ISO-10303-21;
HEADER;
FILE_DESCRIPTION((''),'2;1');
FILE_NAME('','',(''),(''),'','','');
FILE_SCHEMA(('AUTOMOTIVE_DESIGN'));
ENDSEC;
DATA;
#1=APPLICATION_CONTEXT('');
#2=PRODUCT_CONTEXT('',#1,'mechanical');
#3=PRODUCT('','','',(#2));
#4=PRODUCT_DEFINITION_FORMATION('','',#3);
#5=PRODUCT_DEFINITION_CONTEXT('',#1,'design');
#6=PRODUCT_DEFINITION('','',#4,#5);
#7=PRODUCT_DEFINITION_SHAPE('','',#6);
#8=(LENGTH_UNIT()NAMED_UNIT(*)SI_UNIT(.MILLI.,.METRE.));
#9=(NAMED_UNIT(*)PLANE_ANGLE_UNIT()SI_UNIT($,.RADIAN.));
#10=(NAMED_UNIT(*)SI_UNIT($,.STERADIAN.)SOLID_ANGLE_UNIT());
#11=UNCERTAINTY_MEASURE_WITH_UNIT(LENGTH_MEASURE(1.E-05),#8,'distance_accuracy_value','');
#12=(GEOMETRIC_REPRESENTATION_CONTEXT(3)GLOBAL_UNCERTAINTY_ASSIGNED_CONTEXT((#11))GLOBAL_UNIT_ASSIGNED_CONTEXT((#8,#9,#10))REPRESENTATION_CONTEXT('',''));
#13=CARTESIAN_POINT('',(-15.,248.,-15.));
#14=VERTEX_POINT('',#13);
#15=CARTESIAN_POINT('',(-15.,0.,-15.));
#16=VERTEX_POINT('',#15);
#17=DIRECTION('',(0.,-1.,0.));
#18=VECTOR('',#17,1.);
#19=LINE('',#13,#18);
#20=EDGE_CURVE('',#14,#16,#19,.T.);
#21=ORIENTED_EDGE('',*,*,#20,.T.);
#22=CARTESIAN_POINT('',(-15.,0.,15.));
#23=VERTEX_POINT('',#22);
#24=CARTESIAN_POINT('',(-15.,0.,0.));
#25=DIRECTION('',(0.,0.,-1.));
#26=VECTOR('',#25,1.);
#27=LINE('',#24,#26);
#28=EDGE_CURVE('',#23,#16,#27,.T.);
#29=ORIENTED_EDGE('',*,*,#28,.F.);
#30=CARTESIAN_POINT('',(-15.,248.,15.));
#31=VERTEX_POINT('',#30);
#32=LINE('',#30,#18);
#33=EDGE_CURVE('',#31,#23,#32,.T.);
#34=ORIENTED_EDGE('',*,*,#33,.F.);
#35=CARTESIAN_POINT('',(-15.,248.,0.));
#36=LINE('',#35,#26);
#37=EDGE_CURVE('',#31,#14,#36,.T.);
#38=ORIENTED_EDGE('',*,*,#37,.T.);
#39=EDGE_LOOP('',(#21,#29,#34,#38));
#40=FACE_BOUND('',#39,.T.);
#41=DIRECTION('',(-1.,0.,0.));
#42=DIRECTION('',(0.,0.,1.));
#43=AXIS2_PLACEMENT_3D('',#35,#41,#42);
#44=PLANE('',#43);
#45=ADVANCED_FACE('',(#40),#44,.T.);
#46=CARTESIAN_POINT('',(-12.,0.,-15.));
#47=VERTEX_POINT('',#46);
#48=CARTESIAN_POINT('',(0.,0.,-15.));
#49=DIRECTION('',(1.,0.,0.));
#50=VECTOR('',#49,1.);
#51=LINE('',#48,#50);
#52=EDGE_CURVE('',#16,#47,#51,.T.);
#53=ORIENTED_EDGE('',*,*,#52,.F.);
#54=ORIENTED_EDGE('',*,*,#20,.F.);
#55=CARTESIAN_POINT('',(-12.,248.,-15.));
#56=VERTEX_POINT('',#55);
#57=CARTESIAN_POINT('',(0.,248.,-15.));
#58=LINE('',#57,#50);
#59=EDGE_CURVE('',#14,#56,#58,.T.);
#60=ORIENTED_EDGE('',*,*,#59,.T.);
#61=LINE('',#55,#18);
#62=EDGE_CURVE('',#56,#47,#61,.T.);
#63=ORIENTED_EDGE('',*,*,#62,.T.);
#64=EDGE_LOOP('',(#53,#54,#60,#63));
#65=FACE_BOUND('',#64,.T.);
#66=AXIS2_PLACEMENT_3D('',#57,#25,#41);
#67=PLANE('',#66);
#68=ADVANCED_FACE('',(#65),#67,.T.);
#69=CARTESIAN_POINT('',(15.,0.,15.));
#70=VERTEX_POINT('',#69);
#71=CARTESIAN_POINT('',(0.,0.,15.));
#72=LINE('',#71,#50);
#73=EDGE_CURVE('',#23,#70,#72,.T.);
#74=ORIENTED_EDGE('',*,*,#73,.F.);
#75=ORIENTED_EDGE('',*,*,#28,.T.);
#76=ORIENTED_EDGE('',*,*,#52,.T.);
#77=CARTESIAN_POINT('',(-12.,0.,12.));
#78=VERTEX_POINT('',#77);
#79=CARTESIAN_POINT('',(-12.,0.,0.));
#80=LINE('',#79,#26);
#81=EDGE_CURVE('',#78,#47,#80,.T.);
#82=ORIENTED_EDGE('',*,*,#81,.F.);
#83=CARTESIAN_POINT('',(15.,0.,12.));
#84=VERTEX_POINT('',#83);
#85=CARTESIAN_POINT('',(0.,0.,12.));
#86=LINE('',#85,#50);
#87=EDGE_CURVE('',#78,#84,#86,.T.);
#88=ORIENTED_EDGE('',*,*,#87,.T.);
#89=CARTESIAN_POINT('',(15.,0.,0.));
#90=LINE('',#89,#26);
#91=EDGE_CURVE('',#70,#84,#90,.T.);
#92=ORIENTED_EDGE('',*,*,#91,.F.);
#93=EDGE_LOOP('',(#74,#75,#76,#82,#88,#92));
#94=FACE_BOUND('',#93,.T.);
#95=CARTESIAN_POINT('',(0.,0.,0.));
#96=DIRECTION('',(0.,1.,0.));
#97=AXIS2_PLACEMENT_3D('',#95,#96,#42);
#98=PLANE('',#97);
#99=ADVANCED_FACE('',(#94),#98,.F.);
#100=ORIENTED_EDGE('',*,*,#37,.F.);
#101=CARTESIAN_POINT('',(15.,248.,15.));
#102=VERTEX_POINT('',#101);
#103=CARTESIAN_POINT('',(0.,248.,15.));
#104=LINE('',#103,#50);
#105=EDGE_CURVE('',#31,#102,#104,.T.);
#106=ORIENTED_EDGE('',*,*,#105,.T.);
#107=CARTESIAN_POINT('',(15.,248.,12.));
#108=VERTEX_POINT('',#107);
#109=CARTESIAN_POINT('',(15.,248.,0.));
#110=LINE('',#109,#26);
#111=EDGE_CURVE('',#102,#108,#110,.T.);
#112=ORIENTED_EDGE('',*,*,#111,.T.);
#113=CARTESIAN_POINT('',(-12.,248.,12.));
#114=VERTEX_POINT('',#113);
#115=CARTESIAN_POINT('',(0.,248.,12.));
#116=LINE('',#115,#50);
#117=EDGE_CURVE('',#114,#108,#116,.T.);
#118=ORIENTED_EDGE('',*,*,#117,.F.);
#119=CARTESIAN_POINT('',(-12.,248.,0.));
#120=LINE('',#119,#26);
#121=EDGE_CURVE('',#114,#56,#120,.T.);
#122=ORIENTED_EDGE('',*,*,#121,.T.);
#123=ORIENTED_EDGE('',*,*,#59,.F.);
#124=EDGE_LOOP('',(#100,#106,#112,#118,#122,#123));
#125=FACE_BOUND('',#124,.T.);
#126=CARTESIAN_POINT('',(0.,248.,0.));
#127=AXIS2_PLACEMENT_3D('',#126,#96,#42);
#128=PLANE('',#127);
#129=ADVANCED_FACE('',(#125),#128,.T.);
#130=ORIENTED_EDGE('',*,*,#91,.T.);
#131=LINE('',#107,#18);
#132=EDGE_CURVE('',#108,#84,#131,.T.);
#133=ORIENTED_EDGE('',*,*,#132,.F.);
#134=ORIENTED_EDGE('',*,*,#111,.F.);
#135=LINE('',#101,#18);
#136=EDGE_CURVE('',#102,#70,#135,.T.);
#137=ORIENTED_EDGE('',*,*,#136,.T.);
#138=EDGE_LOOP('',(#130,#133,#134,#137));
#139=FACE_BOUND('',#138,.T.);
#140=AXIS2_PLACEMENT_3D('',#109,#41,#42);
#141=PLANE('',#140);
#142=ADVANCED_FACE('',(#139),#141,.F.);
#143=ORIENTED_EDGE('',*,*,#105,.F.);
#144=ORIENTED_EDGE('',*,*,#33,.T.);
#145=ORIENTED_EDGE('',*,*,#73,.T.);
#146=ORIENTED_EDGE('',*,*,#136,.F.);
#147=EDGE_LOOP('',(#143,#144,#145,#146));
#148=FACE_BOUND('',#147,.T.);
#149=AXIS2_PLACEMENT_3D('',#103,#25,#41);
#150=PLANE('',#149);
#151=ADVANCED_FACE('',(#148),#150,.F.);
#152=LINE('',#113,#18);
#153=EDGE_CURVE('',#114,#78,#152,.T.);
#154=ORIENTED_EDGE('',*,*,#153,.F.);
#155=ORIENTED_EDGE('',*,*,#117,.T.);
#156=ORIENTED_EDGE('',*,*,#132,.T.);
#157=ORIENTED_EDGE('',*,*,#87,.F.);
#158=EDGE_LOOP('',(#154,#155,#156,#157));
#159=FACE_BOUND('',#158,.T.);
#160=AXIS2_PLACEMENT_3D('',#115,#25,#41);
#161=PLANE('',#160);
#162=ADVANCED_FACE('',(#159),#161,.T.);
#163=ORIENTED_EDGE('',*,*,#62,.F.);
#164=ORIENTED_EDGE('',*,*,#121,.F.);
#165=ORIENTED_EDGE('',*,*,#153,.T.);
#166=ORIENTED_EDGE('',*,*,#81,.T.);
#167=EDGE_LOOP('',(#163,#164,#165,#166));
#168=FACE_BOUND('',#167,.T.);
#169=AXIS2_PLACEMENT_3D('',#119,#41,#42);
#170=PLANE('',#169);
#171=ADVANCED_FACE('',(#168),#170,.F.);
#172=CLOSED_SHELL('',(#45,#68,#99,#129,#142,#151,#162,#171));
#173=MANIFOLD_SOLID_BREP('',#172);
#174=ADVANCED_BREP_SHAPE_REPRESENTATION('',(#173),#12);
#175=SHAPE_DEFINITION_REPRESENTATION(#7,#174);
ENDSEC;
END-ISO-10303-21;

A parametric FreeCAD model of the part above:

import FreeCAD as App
import Part
import Sketcher
from FreeCAD import Vector

doc = App.newDocument("Part")
body = doc.addObject("PartDesign::Body", "Body")

sketch1 = doc.addObject("Sketcher::SketchObject", "Sketch")
body.addObject(sketch1)
sketch1.AttachmentSupport = (doc.XZ_Plane, [""])
sketch1.MapMode = "FlatFace"
sketch1.addGeometry([
    Part.LineSegment(Vector(-12, 12, 0), Vector(-12, -15, 0)),
    Part.LineSegment(Vector(-12, -15, 0), Vector(-15, -15, 0)),
    Part.LineSegment(Vector(-15, -15, 0), Vector(-15, 15, 0)),
    Part.LineSegment(Vector(-15, 15, 0), Vector(15, 15, 0)),
    Part.LineSegment(Vector(15, 15, 0), Vector(15, 12, 0)),
    Part.LineSegment(Vector(15, 12, 0), Vector(-12, 12, 0)),
], False)
sketch1.addConstraint([
    Sketcher.Constraint("Coincident", 0, 2, 1, 1),
    Sketcher.Constraint("Coincident", 1, 2, 2, 1),
    Sketcher.Constraint("Coincident", 2, 2, 3, 1),
    Sketcher.Constraint("Coincident", 3, 2, 4, 1),
    Sketcher.Constraint("Coincident", 4, 2, 5, 1),
    Sketcher.Constraint("Coincident", 5, 2, 0, 1),
    Sketcher.Constraint("Vertical", 0),
    Sketcher.Constraint("Horizontal", 1),
    Sketcher.Constraint("Vertical", 2),
    Sketcher.Constraint("Horizontal", 3),
    Sketcher.Constraint("Vertical", 4),
    Sketcher.Constraint("Horizontal", 5),
    Sketcher.Constraint("Symmetric", 1, 2, 3, 2, -1, 1),
    Sketcher.Constraint("Equal", 5, 0),
    Sketcher.Constraint("Equal", 3, 2),
    Sketcher.Constraint("DistanceX", 1, 2, 1, 1, 3.0),
    Sketcher.Constraint("DistanceX", 3, 1, 3, 2, 30.0),
])
pad1 = doc.addObject("PartDesign::Pad", "Pad")
body.addObject(pad1)
pad1.Profile = sketch1
pad1.Length = 248
pad1.Reversed = True

doc.recompute()
